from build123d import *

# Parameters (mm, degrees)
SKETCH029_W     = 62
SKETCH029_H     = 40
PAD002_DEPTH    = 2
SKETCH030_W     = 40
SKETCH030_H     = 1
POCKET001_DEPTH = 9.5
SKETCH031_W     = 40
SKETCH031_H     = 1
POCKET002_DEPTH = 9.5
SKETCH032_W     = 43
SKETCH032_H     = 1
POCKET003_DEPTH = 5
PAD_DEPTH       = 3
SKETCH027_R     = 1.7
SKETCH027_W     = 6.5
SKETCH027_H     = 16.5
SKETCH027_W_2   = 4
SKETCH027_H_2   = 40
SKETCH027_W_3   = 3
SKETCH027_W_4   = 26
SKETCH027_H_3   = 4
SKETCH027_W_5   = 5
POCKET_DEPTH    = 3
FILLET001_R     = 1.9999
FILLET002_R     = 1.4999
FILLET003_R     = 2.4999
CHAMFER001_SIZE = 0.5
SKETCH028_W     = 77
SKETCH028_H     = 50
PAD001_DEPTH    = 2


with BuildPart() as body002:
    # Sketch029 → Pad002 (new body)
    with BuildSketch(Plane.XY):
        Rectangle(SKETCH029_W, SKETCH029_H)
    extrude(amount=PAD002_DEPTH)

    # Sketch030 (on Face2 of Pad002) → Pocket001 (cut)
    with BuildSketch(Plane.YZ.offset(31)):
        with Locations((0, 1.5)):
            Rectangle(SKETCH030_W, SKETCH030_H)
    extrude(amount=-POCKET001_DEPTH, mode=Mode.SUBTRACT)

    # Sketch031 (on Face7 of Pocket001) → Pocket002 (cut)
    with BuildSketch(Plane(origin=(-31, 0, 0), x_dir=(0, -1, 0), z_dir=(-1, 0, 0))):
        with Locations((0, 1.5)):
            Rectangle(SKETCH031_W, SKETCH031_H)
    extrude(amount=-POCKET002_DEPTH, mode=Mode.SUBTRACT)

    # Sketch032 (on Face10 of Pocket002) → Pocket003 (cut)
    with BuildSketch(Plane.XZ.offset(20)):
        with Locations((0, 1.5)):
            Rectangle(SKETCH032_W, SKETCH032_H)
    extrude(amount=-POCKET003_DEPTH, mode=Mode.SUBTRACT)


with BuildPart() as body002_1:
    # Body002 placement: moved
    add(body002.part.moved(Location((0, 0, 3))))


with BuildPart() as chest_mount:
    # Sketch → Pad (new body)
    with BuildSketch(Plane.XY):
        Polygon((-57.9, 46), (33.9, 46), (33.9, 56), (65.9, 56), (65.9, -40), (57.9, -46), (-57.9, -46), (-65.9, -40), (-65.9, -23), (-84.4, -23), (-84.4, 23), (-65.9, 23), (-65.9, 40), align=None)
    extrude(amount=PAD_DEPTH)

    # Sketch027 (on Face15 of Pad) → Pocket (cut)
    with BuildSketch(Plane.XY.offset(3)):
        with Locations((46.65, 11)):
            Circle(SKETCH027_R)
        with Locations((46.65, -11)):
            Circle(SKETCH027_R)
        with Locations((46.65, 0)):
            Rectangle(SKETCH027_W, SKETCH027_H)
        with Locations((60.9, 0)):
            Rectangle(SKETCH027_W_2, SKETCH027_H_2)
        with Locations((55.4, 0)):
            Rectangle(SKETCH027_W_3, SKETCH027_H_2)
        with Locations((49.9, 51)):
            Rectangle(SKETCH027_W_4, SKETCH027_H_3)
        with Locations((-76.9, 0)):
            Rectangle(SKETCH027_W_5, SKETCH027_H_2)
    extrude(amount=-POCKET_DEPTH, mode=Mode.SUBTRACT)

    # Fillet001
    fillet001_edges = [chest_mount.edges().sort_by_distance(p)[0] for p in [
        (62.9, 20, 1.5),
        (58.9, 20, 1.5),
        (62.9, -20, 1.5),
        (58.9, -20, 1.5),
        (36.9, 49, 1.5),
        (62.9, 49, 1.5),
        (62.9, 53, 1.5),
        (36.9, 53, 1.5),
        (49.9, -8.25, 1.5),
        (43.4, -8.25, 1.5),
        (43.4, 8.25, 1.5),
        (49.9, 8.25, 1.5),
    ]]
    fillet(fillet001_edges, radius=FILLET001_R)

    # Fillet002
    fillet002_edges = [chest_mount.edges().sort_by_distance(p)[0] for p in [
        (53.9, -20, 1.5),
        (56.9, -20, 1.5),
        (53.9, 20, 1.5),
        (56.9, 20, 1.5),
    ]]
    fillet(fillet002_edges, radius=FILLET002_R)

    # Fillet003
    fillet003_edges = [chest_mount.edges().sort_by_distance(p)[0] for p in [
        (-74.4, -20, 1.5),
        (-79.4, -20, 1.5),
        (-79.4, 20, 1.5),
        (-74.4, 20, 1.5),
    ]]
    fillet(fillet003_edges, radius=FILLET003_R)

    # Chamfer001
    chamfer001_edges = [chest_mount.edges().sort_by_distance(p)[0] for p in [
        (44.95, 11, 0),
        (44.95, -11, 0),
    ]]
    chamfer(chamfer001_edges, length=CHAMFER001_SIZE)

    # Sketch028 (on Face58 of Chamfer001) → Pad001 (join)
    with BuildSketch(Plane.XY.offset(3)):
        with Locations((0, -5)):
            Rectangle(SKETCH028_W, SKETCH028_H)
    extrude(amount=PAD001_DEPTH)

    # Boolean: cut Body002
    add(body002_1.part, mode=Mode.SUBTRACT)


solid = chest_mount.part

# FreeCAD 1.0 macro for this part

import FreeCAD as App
import Part
import Sketcher

V = App.Vector
Q = App.Units.Quantity


def edges_at(feature, points):
    """Names of the edges that pass closest to the given points."""
    edges = feature.Shape.Edges
    near = lambda p: min(range(len(edges)), key=lambda i: edges[i].distToShape(Part.Vertex(*p))[0])
    return sorted({f"Edge{near(p) + 1}" for p in points})


def add_polygon(sketch, points):
    """Adds a closed chain of lines whose ends are joined by coincident constraints."""
    first, n = sketch.GeometryCount, len(points)
    for a, b in zip(points, points[1:] + points[:1]):
        sketch.addGeometry(Part.LineSegment(App.Vector(*a, 0), App.Vector(*b, 0)), False)
    for i in range(n):
        sketch.addConstraint(Sketcher.Constraint("Coincident", first + i, 2, first + (i + 1) % n, 1))

doc = App.newDocument("Part")
params = doc.addObject("Spreadsheet::Sheet", "Params")
for row, (alias, value) in enumerate([
    ("sketch1_width", "62 mm"),
    ("sketch1_height", "40 mm"),
    ("pad1_length", "2 mm"),
    ("sketch2_width", "40 mm"),
    ("sketch2_height", "1 mm"),
    ("pocket1_length", "9.5 mm"),
    ("sketch3_width", "40 mm"),
    ("sketch3_height", "1 mm"),
    ("pocket2_length", "9.5 mm"),
    ("sketch4_width", "43 mm"),
    ("sketch4_height", "1 mm"),
    ("pocket3_length", "5 mm"),
    ("sketch5_width", "32 mm"),
    ("sketch5_height", "17 mm"),
    ("sketch5_height2", "46 mm"),
    ("sketch5_height3", "96 mm"),
    ("sketch5_height4", "10 mm"),
    ("pad2_length", "3 mm"),
    ("sketch6_diameter", "3.4 mm"),
    ("sketch6_width", "4 mm"),
    ("sketch6_width2", "3 mm"),
    ("sketch6_width3", "26 mm"),
    ("sketch6_width4", "5 mm"),
    ("pocket4_length", "3 mm"),
    ("fillet_radius", "1.9999 mm"),
    ("fillet2_radius", "1.4999 mm"),
    ("fillet3_radius", "2.4999 mm"),
    ("chamfer_size", "0.5 mm"),
    ("sketch7_width", "77 mm"),
    ("sketch7_height", "50 mm"),
    ("pad3_length", "2 mm"),
], start=1):
    params.set(f"A{row}", alias)
    params.set(f"B{row}", "=" + value)
    params.setAlias(f"B{row}", alias)

body = doc.addObject("PartDesign::Body", "Body")

# Sketch on XY plane
sketch1 = doc.addObject("Sketcher::SketchObject", "Sketch")
body.addObject(sketch1)
sketch1.AttachmentSupport = (doc.XY_Plane, [""])
sketch1.MapMode = "FlatFace"
add_polygon(sketch1, [(-31, 20), (-31, -20), (31, -20), (31, 20)])  # lines 0-3
sketch1.addConstraint(Sketcher.Constraint("Vertical", 0))
sketch1.addConstraint(Sketcher.Constraint("Horizontal", 1))
sketch1.addConstraint(Sketcher.Constraint("Vertical", 2))
sketch1.addConstraint(Sketcher.Constraint("Horizontal", 3))
sketch1.addConstraint(Sketcher.Constraint("Symmetric", 0, 2, 2, 2, -1, 1))
sketch1.addConstraint(Sketcher.Constraint("DistanceX", 1, 1, 1, 2, Q("62 mm")))
sketch1.addConstraint(Sketcher.Constraint("DistanceY", 0, 2, 0, 1, Q("40 mm")))
sketch1.setExpression("Constraints[9]", "Params.sketch1_width")
sketch1.setExpression("Constraints[10]", "Params.sketch1_height")
pad1 = doc.addObject("PartDesign::Pad", "Pad")
body.addObject(pad1)
pad1.Profile = sketch1
pad1.setExpression("Length", "Params.pad1_length")

# Sketch on YZ plane
sketch2 = doc.addObject("Sketcher::SketchObject", "Sketch001")
body.addObject(sketch2)
sketch2.AttachmentSupport = (doc.YZ_Plane, [""])
sketch2.MapMode = "FlatFace"
sketch2.AttachmentOffset = App.Placement(V(0, 0, 31), App.Rotation())
add_polygon(sketch2, [(-20, 2), (-20, 1), (20, 1), (20, 2)])  # lines 0-3
sketch2.addConstraint(Sketcher.Constraint("Vertical", 0))
sketch2.addConstraint(Sketcher.Constraint("Horizontal", 1))
sketch2.addConstraint(Sketcher.Constraint("Vertical", 2))
sketch2.addConstraint(Sketcher.Constraint("Horizontal", 3))
sketch2.addConstraint(Sketcher.Constraint("DistanceX", 1, 1, 1, 2, Q("40 mm")))
sketch2.addConstraint(Sketcher.Constraint("DistanceY", 0, 2, 0, 1, Q("1 mm")))
sketch2.addConstraint(Sketcher.Constraint("DistanceX", 0, 2, -1, 1, Q("20 mm")))
sketch2.addConstraint(Sketcher.Constraint("DistanceY", -1, 1, 0, 2, Q("1 mm")))
sketch2.setExpression("Constraints[8]", "Params.sketch2_width")
sketch2.setExpression("Constraints[9]", "Params.sketch2_height")
pocket1 = doc.addObject("PartDesign::Pocket", "Pocket")
body.addObject(pocket1)
pocket1.Profile = sketch2
pocket1.setExpression("Length", "Params.pocket1_length")

# Sketch on YZ plane
sketch3 = doc.addObject("Sketcher::SketchObject", "Sketch002")
body.addObject(sketch3)
sketch3.AttachmentSupport = (doc.YZ_Plane, [""])
sketch3.MapMode = "FlatFace"
sketch3.AttachmentOffset = App.Placement(V(0, 0, -31), App.Rotation())
add_polygon(sketch3, [(20, 2), (20, 1), (-20, 1), (-20, 2)])  # lines 0-3
sketch3.addConstraint(Sketcher.Constraint("Vertical", 0))
sketch3.addConstraint(Sketcher.Constraint("Horizontal", 1))
sketch3.addConstraint(Sketcher.Constraint("Vertical", 2))
sketch3.addConstraint(Sketcher.Constraint("Horizontal", 3))
sketch3.addConstraint(Sketcher.Constraint("DistanceX", 1, 2, 1, 1, Q("40 mm")))
sketch3.addConstraint(Sketcher.Constraint("DistanceY", 0, 2, 0, 1, Q("1 mm")))
sketch3.addConstraint(Sketcher.Constraint("DistanceX", -1, 1, 0, 2, Q("20 mm")))
sketch3.addConstraint(Sketcher.Constraint("DistanceY", -1, 1, 0, 2, Q("1 mm")))
sketch3.setExpression("Constraints[8]", "Params.sketch3_width")
sketch3.setExpression("Constraints[9]", "Params.sketch3_height")
pocket2 = doc.addObject("PartDesign::Pocket", "Pocket001")
body.addObject(pocket2)
pocket2.Profile = sketch3
pocket2.setExpression("Length", "Params.pocket2_length")
pocket2.Reversed = True

# Sketch on XZ plane
sketch4 = doc.addObject("Sketcher::SketchObject", "Sketch003")
body.addObject(sketch4)
sketch4.AttachmentSupport = (doc.XZ_Plane, [""])
sketch4.MapMode = "FlatFace"
sketch4.AttachmentOffset = App.Placement(V(0, 0, 20), App.Rotation())
add_polygon(sketch4, [(-21.5, 2), (-21.5, 1), (21.5, 1), (21.5, 2)])  # lines 0-3
sketch4.addConstraint(Sketcher.Constraint("Vertical", 0))
sketch4.addConstraint(Sketcher.Constraint("Horizontal", 1))
sketch4.addConstraint(Sketcher.Constraint("Vertical", 2))
sketch4.addConstraint(Sketcher.Constraint("Horizontal", 3))
sketch4.addConstraint(Sketcher.Constraint("DistanceX", 1, 1, 1, 2, Q("43 mm")))
sketch4.addConstraint(Sketcher.Constraint("DistanceY", 0, 2, 0, 1, Q("1 mm")))
sketch4.addConstraint(Sketcher.Constraint("DistanceY", -1, 1, 0, 2, Q("1 mm")))
sketch4.addConstraint(Sketcher.Constraint("DistanceX", 0, 2, -1, 1, Q("21.5 mm")))
sketch4.setExpression("Constraints[8]", "Params.sketch4_width")
sketch4.setExpression("Constraints[9]", "Params.sketch4_height")
pocket3 = doc.addObject("PartDesign::Pocket", "Pocket002")
body.addObject(pocket3)
pocket3.Profile = sketch4
pocket3.setExpression("Length", "Params.pocket3_length")
body2 = doc.addObject("PartDesign::Body", "Body001")
doc.recompute()

body.Placement = App.Placement(V(0, 0, 3), App.Rotation(V(0, 0, 1), 0))
boolean = doc.addObject("PartDesign::Boolean", "Boolean")
body2.addObject(boolean)
boolean.Type = "Fuse"
boolean.addObjects([body])
body3 = doc.addObject("PartDesign::Body", "Body002")

# Sketch on XY plane
sketch5 = doc.addObject("Sketcher::SketchObject", "Sketch004")
body3.addObject(sketch5)
sketch5.AttachmentSupport = (doc.getObject("XY_Plane002"), [""])
sketch5.MapMode = "FlatFace"
add_polygon(sketch5, [(34, 46), (-58, 46), (-66, 40), (-66, 23), (-84, 23), (-84, -23), (-66, -23), (-66, -40), (-58, -46), (58, -46), (66, -40), (66, 56), (34, 56)])  # lines 0-12
sketch5.addConstraint(Sketcher.Constraint("Horizontal", 0))
sketch5.addConstraint(Sketcher.Constraint("Vertical", 2))
sketch5.addConstraint(Sketcher.Constraint("Horizontal", 3))
sketch5.addConstraint(Sketcher.Constraint("Vertical", 4))
sketch5.addConstraint(Sketcher.Constraint("Horizontal", 5))
sketch5.addConstraint(Sketcher.Constraint("Vertical", 6))
sketch5.addConstraint(Sketcher.Constraint("Horizontal", 8))
sketch5.addConstraint(Sketcher.Constraint("Vertical", 10))
sketch5.addConstraint(Sketcher.Constraint("Horizontal", 11))
sketch5.addConstraint(Sketcher.Constraint("Vertical", 12))
sketch5.addConstraint(Sketcher.Constraint("Symmetric", 0, 2, 8, 2, -1, 1))
sketch5.addConstraint(Sketcher.Constraint("Symmetric", 1, 2, 9, 2, -1, 1))
sketch5.addConstraint(Sketcher.Constraint("Symmetric", 6, 2, 9, 2, -2))
sketch5.addConstraint(Sketcher.Constraint("Vertical", 0, 2, 7, 2))
sketch5.addConstraint(Sketcher.Constraint("Equal", 2, 6))
sketch5.addConstraint(Sketcher.Constraint("DistanceX", 11, 2, 11, 1, Q("32 mm")))
sketch5.addConstraint(Sketcher.Constraint("DistanceY", 2, 2, 2, 1, Q("17 mm")))
sketch5.addConstraint(Sketcher.Constraint("DistanceY", 4, 2, 4, 1, Q("46 mm")))
sketch5.addConstraint(Sketcher.Constraint("DistanceY", 10, 1, 10, 2, Q("96 mm")))
sketch5.addConstraint(Sketcher.Constraint("DistanceY", 12, 2, 12, 1, Q("10 mm")))
sketch5.addConstraint(Sketcher.Constraint("Distance", 1, Q("10 mm")))
sketch5.addConstraint(Sketcher.Constraint("DistanceX", 0, 2, 0, 1, Q("91.8 mm")))
sketch5.addConstraint(Sketcher.Constraint("DistanceX", 3, 2, 3, 1, Q("18.5 mm")))
sketch5.setExpression("Constraints[28]", "Params.sketch5_width")
sketch5.setExpression("Constraints[29]", "Params.sketch5_height")
sketch5.setExpression("Constraints[30]", "Params.sketch5_height2")
sketch5.setExpression("Constraints[31]", "Params.sketch5_height3")
sketch5.setExpression("Constraints[32]", "Params.sketch5_height4")
pad2 = doc.addObject("PartDesign::Pad", "Pad001")
body3.addObject(pad2)
pad2.Profile = sketch5
pad2.setExpression("Length", "Params.pad2_length")

# Sketch on XY plane
sketch6 = doc.addObject("Sketcher::SketchObject", "Sketch005")
body3.addObject(sketch6)
sketch6.AttachmentSupport = (doc.getObject("XY_Plane002"), [""])
sketch6.MapMode = "FlatFace"
sketch6.AttachmentOffset = App.Placement(V(0, 0, 3), App.Rotation())
sketch6.addGeometry(Part.Circle(V(46.6, 11, 0), V(0, 0, 1), 1.7), False)  # 0
sketch6.addGeometry(Part.Circle(V(46.6, -11, 0), V(0, 0, 1), 1.7), False)  # 1
add_polygon(sketch6, [(43.4, 8.2), (43.4, -8.2), (49.9, -8.2), (49.9, 8.2)])  # lines 2-5
add_polygon(sketch6, [(58.9, 20), (58.9, -20), (62.9, -20), (62.9, 20)])  # lines 6-9
add_polygon(sketch6, [(53.9, 20), (53.9, -20), (56.9, -20), (56.9, 20)])  # lines 10-13
add_polygon(sketch6, [(36.9, 53), (36.9, 49), (62.9, 49), (62.9, 53)])  # lines 14-17
add_polygon(sketch6, [(-79.4, 20), (-79.4, -20), (-74.4, -20), (-74.4, 20)])  # lines 18-21
sketch6.addConstraint(Sketcher.Constraint("Vertical", 2))
sketch6.addConstraint(Sketcher.Constraint("Horizontal", 3))
sketch6.addConstraint(Sketcher.Constraint("Vertical", 4))
sketch6.addConstraint(Sketcher.Constraint("Horizontal", 5))
sketch6.addConstraint(Sketcher.Constraint("Vertical", 6))
sketch6.addConstraint(Sketcher.Constraint("Horizontal", 7))
sketch6.addConstraint(Sketcher.Constraint("Vertical", 8))
sketch6.addConstraint(Sketcher.Constraint("Horizontal", 9))
sketch6.addConstraint(Sketcher.Constraint("Vertical", 10))
sketch6.addConstraint(Sketcher.Constraint("Horizontal", 11))
sketch6.addConstraint(Sketcher.Constraint("Vertical", 12))
sketch6.addConstraint(Sketcher.Constraint("Horizontal", 13))
sketch6.addConstraint(Sketcher.Constraint("Vertical", 14))
sketch6.addConstraint(Sketcher.Constraint("Horizontal", 15))
sketch6.addConstraint(Sketcher.Constraint("Vertical", 16))
sketch6.addConstraint(Sketcher.Constraint("Horizontal", 17))
sketch6.addConstraint(Sketcher.Constraint("Vertical", 18))
sketch6.addConstraint(Sketcher.Constraint("Horizontal", 19))
sketch6.addConstraint(Sketcher.Constraint("Vertical", 20))
sketch6.addConstraint(Sketcher.Constraint("Horizontal", 21))
sketch6.addConstraint(Sketcher.Constraint("Equal", 0, 1))
sketch6.addConstraint(Sketcher.Constraint("Symmetric", 0, 3, 1, 3, -1))
sketch6.addConstraint(Sketcher.Constraint("Horizontal", 7, 2, 10, 2))
sketch6.addConstraint(Sketcher.Constraint("Horizontal", 9, 2, 12, 2))
sketch6.addConstraint(Sketcher.Constraint("Horizontal", 11, 2, 18, 2))
sketch6.addConstraint(Sketcher.Constraint("Horizontal", 13, 2, 20, 2))
sketch6.addConstraint(Sketcher.Constraint("Vertical", 8, 2, 15, 2))
sketch6.addConstraint(Sketcher.Constraint("Equal", 9, 14))
sketch6.addConstraint(Sketcher.Constraint("Diameter", 0, Q("3.4 mm")))
sketch6.addConstraint(Sketcher.Constraint("DistanceX", 7, 1, 7, 2, Q("4 mm")))
sketch6.addConstraint(Sketcher.Constraint("DistanceX", 11, 1, 11, 2, Q("3 mm")))
sketch6.addConstraint(Sketcher.Constraint("DistanceX", 15, 1, 15, 2, Q("26 mm")))
sketch6.addConstraint(Sketcher.Constraint("DistanceX", 19, 1, 19, 2, Q("5 mm")))
sketch6.addConstraint(Sketcher.Constraint("DistanceY", 6, 2, 6, 1, Q("40 mm")))
sketch6.addConstraint(Sketcher.Constraint("DistanceX", 3, 1, 3, 2, Q("6.5 mm")))
sketch6.addConstraint(Sketcher.Constraint("DistanceY", 2, 2, 2, 1, Q("16.5 mm")))
sketch6.addConstraint(Sketcher.Constraint("DistanceY", -1, 1, 0, 3, Q("11 mm")))
sketch6.addConstraint(Sketcher.Constraint("DistanceY", 6, 2, -1, 1, Q("20 mm")))
sketch6.addConstraint(Sketcher.Constraint("DistanceY", -1, 1, 14, 2, Q("49 mm")))
sketch6.addConstraint(Sketcher.Constraint("DistanceX", 3, 2, 6, 2, Q("9 mm")))
sketch6.addConstraint(Sketcher.Constraint("DistanceX", 10, 2, 6, 2, Q("5 mm")))
sketch6.addConstraint(Sketcher.Constraint("DistanceX", -1, 1, 2, 2, Q("43.4 mm")))
sketch6.addConstraint(Sketcher.Constraint("DistanceX", 18, 2, -1, 1, Q("79.4 mm")))
sketch6.addConstraint(Sketcher.Constraint("DistanceX", -1, 1, 0, 3, Q("46.65 mm")))
sketch6.addConstraint(Sketcher.Constraint("DistanceY", 2, 2, -1, 1, Q("8.25 mm")))
sketch6.setExpression("Constraints[48]", "Params.sketch6_diameter")
sketch6.setExpression("Constraints[49]", "Params.sketch6_width")
sketch6.setExpression("Constraints[50]", "Params.sketch6_width2")
sketch6.setExpression("Constraints[51]", "Params.sketch6_width3")
sketch6.setExpression("Constraints[52]", "Params.sketch6_width4")
pocket4 = doc.addObject("PartDesign::Pocket", "Pocket003")
body3.addObject(pocket4)
pocket4.Profile = sketch6
pocket4.setExpression("Length", "Params.pocket4_length")
doc.recompute()

fillet = doc.addObject("PartDesign::Fillet", "Fillet")
body3.addObject(fillet)
fillet.Base = (pocket4, edges_at(pocket4, [
    (62.9, 20, 1.5),
    (58.9, 20, 1.5),
    (62.9, -20, 1.5),
    (58.9, -20, 1.5),
    (36.9, 49, 1.5),
    (62.9, 49, 1.5),
    (62.9, 53, 1.5),
    (36.9, 53, 1.5),
    (49.9, -8.25, 1.5),
    (43.4, -8.25, 1.5),
    (43.4, 8.25, 1.5),
    (49.9, 8.25, 1.5),
]))
fillet.setExpression("Radius", "Params.fillet_radius")
doc.recompute()

fillet2 = doc.addObject("PartDesign::Fillet", "Fillet001")
body3.addObject(fillet2)
fillet2.Base = (fillet, edges_at(fillet, [
    (53.9, -20, 1.5),
    (56.9, -20, 1.5),
    (53.9, 20, 1.5),
    (56.9, 20, 1.5),
]))
fillet2.setExpression("Radius", "Params.fillet2_radius")
doc.recompute()

fillet3 = doc.addObject("PartDesign::Fillet", "Fillet002")
body3.addObject(fillet3)
fillet3.Base = (fillet2, edges_at(fillet2, [
    (-74.4, -20, 1.5),
    (-79.4, -20, 1.5),
    (-79.4, 20, 1.5),
    (-74.4, 20, 1.5),
]))
fillet3.setExpression("Radius", "Params.fillet3_radius")
doc.recompute()

chamfer = doc.addObject("PartDesign::Chamfer", "Chamfer")
body3.addObject(chamfer)
chamfer.Base = (fillet3, edges_at(fillet3, [(44.95, 11, 0), (44.95, -11, 0)]))
chamfer.setExpression("Size", "Params.chamfer_size")

# Sketch on XY plane
sketch7 = doc.addObject("Sketcher::SketchObject", "Sketch006")
body3.addObject(sketch7)
sketch7.AttachmentSupport = (doc.getObject("XY_Plane002"), [""])
sketch7.MapMode = "FlatFace"
sketch7.AttachmentOffset = App.Placement(V(0, 0, 3), App.Rotation())
add_polygon(sketch7, [(-38, 20), (-38, -30), (38, -30), (38, 20)])  # lines 0-3
sketch7.addConstraint(Sketcher.Constraint("Vertical", 0))
sketch7.addConstraint(Sketcher.Constraint("Horizontal", 1))
sketch7.addConstraint(Sketcher.Constraint("Vertical", 2))
sketch7.addConstraint(Sketcher.Constraint("Horizontal", 3))
sketch7.addConstraint(Sketcher.Constraint("DistanceX", 1, 1, 1, 2, Q("77 mm")))
sketch7.addConstraint(Sketcher.Constraint("DistanceY", 0, 2, 0, 1, Q("50 mm")))
sketch7.addConstraint(Sketcher.Constraint("DistanceY", 0, 2, -1, 1, Q("30 mm")))
sketch7.addConstraint(Sketcher.Constraint("DistanceX", 0, 2, -1, 1, Q("38.5 mm")))
sketch7.setExpression("Constraints[8]", "Params.sketch7_width")
sketch7.setExpression("Constraints[9]", "Params.sketch7_height")
pad3 = doc.addObject("PartDesign::Pad", "Pad002")
body3.addObject(pad3)
pad3.Profile = sketch7
pad3.setExpression("Length", "Params.pad3_length")
doc.recompute()

boolean2 = doc.addObject("PartDesign::Boolean", "Boolean001")
body3.addObject(boolean2)
boolean2.Type = "Cut"
boolean2.addObjects([body2])

doc.recompute()
